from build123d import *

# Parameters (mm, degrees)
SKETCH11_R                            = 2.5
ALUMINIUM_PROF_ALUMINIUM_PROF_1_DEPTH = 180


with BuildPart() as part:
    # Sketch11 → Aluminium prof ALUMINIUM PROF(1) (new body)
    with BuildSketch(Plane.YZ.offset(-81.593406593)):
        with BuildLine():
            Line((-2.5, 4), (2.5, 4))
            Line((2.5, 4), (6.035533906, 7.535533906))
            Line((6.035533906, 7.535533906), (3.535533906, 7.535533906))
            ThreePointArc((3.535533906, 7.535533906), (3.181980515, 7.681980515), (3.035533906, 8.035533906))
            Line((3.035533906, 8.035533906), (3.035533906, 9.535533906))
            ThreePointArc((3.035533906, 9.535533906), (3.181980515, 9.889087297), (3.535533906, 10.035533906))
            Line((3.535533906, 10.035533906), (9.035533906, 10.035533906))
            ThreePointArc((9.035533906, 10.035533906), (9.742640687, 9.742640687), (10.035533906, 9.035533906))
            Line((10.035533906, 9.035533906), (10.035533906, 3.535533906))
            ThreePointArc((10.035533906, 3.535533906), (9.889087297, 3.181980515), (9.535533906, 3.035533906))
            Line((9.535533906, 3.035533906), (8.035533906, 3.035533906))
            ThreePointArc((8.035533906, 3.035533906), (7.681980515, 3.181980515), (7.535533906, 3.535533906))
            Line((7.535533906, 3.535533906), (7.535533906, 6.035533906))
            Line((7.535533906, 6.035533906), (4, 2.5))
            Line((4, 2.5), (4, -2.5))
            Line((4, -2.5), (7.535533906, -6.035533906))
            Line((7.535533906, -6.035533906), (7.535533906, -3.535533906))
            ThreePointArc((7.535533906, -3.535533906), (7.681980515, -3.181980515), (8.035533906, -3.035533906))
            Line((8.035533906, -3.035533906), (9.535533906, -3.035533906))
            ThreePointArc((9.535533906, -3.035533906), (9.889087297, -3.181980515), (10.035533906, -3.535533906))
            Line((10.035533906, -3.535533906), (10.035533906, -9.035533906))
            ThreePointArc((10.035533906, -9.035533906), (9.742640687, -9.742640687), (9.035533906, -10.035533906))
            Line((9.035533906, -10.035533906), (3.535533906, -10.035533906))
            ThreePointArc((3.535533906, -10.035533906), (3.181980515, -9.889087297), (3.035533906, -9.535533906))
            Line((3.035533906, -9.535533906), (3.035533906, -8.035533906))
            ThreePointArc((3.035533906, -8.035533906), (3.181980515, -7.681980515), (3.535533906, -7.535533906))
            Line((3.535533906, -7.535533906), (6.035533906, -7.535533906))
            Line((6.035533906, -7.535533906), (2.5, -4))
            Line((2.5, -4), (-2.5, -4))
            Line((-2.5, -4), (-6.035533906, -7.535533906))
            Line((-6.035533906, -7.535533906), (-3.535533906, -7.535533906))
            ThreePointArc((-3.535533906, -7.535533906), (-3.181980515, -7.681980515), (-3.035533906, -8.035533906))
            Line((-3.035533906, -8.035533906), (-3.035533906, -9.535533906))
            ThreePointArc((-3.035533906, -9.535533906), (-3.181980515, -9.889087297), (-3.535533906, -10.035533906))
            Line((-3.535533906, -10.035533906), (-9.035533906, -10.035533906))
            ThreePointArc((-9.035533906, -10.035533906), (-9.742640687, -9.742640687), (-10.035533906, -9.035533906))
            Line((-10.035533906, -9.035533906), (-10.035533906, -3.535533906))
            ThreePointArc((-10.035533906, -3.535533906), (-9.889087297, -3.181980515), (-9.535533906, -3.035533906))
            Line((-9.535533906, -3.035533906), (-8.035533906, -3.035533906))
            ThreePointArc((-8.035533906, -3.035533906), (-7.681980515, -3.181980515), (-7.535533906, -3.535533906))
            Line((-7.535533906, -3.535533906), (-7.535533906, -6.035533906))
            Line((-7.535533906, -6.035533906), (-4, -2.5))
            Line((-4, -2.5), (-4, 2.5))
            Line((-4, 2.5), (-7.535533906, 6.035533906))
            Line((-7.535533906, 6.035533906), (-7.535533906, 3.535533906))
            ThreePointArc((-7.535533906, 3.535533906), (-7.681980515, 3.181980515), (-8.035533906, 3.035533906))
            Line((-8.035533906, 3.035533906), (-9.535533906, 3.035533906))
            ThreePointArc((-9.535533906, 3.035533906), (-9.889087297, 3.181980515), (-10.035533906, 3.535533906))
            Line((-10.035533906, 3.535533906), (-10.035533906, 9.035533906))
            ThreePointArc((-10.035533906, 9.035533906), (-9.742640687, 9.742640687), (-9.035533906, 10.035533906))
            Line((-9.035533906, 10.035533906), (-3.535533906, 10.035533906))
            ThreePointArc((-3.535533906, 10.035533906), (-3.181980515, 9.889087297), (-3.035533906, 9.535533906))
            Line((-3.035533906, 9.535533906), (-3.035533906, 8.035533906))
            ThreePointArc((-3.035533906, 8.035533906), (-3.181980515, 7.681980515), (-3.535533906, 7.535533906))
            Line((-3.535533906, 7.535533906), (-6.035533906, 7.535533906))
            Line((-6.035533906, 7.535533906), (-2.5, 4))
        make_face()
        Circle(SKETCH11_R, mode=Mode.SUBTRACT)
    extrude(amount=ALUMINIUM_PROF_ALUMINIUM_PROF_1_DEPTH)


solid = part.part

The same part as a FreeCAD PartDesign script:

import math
import FreeCAD as App
import Part
import Sketcher
from FreeCAD import Vector

doc = App.newDocument("Part")
body = doc.addObject("PartDesign::Body", "Body")

# Sketch on YZ plane
sketch1 = body.newObject("Sketcher::SketchObject", "Sketch")
sketch1.AttachmentSupport = (doc.getObject("YZ_Plane"), [""])
sketch1.MapMode = "FlatFace"
sketch1.AttachmentOffset = App.Placement(Vector(0, 0, -81.593407), App.Rotation())
sketch1.addGeometry(Part.LineSegment(Vector(2.5, 4, 0), Vector(-2.5, 4, 0)), False)
sketch1.addGeometry(Part.LineSegment(Vector(-2.5, 4, 0), Vector(-6.04, 7.54, 0)), False)
sketch1.addGeometry(Part.LineSegment(Vector(-6.04, 7.54, 0), Vector(-3.54, 7.54, 0)), False)
sketch1.addGeometry(Part.ArcOfCircle(Part.Circle(Vector(-3.54, 8.04, 0), Vector(0, 0, 1), 0.5), math.radians(-90), math.radians(0)), False)
sketch1.addGeometry(Part.LineSegment(Vector(-3.04, 8.04, 0), Vector(-3.04, 9.54, 0)), False)
sketch1.addGeometry(Part.ArcOfCircle(Part.Circle(Vector(-3.54, 9.54, 0), Vector(0, 0, 1), 0.5), math.radians(0), math.radians(90)), False)
sketch1.addGeometry(Part.LineSegment(Vector(-3.54, 10.04, 0), Vector(-9.04, 10.04, 0)), False)
sketch1.addGeometry(Part.ArcOfCircle(Part.Circle(Vector(-9.04, 9.04, 0), Vector(0, 0, 1), 1), math.radians(90), math.radians(180)), False)
sketch1.addGeometry(Part.LineSegment(Vector(-10.04, 9.04, 0), Vector(-10.04, 3.54, 0)), False)
sketch1.addGeometry(Part.ArcOfCircle(Part.Circle(Vector(-9.54, 3.54, 0), Vector(0, 0, 1), 0.5), math.radians(180), math.radians(270)), False)
sketch1.addGeometry(Part.LineSegment(Vector(-9.54, 3.04, 0), Vector(-8.04, 3.04, 0)), False)
sketch1.addGeometry(Part.ArcOfCircle(Part.Circle(Vector(-8.04, 3.54, 0), Vector(0, 0, 1), 0.5), math.radians(-90), math.radians(0)), False)
sketch1.addGeometry(Part.LineSegment(Vector(-7.54, 3.54, 0), Vector(-7.54, 6.04, 0)), False)
sketch1.addGeometry(Part.LineSegment(Vector(-7.54, 6.04, 0), Vector(-4, 2.5, 0)), False)
sketch1.addGeometry(Part.LineSegment(Vector(-4, 2.5, 0), Vector(-4, -2.5, 0)), False)
sketch1.addGeometry(Part.LineSegment(Vector(-4, -2.5, 0), Vector(-7.54, -6.04, 0)), False)
sketch1.addGeometry(Part.LineSegment(Vector(-7.54, -6.04, 0), Vector(-7.54, -3.54, 0)), False)
sketch1.addGeometry(Part.ArcOfCircle(Part.Circle(Vector(-8.04, -3.54, 0), Vector(0, 0, 1), 0.5), math.radians(0), math.radians(90)), False)
sketch1.addGeometry(Part.LineSegment(Vector(-8.04, -3.04, 0), Vector(-9.54, -3.04, 0)), False)
sketch1.addGeometry(Part.ArcOfCircle(Part.Circle(Vector(-9.54, -3.54, 0), Vector(0, 0, 1), 0.5), math.radians(90), math.radians(180)), False)
sketch1.addGeometry(Part.LineSegment(Vector(-10.04, -3.54, 0), Vector(-10.04, -9.04, 0)), False)
sketch1.addGeometry(Part.ArcOfCircle(Part.Circle(Vector(-9.04, -9.04, 0), Vector(0, 0, 1), 1), math.radians(-180), math.radians(-90)), False)
sketch1.addGeometry(Part.LineSegment(Vector(-9.04, -10.04, 0), Vector(-3.54, -10.04, 0)), False)
sketch1.addGeometry(Part.ArcOfCircle(Part.Circle(Vector(-3.54, -9.54, 0), Vector(0, 0, 1), 0.5), math.radians(-90), math.radians(0)), False)
sketch1.addGeometry(Part.LineSegment(Vector(-3.04, -9.54, 0), Vector(-3.04, -8.04, 0)), False)
sketch1.addGeometry(Part.ArcOfCircle(Part.Circle(Vector(-3.54, -8.04, 0), Vector(0, 0, 1), 0.5), math.radians(0), math.radians(90)), False)
sketch1.addGeometry(Part.LineSegment(Vector(-3.54, -7.54, 0), Vector(-6.04, -7.54, 0)), False)
sketch1.addGeometry(Part.LineSegment(Vector(-6.04, -7.54, 0), Vector(-2.5, -4, 0)), False)
sketch1.addGeometry(Part.LineSegment(Vector(-2.5, -4, 0), Vector(2.5, -4, 0)), False)
sketch1.addGeometry(Part.LineSegment(Vector(2.5, -4, 0), Vector(6.04, -7.54, 0)), False)
sketch1.addGeometry(Part.LineSegment(Vector(6.04, -7.54, 0), Vector(3.54, -7.54, 0)), False)
sketch1.addGeometry(Part.ArcOfCircle(Part.Circle(Vector(3.54, -8.04, 0), Vector(0, 0, 1), 0.5), math.radians(90), math.radians(180)), False)
sketch1.addGeometry(Part.LineSegment(Vector(3.04, -8.04, 0), Vector(3.04, -9.54, 0)), False)
sketch1.addGeometry(Part.ArcOfCircle(Part.Circle(Vector(3.54, -9.54, 0), Vector(0, 0, 1), 0.5), math.radians(180), math.radians(270)), False)
sketch1.addGeometry(Part.LineSegment(Vector(3.54, -10.04, 0), Vector(9.04, -10.04, 0)), False)
sketch1.addGeometry(Part.ArcOfCircle(Part.Circle(Vector(9.04, -9.04, 0), Vector(0, 0, 1), 1), math.radians(-90), math.radians(0)), False)
sketch1.addGeometry(Part.LineSegment(Vector(10.04, -9.04, 0), Vector(10.04, -3.54, 0)), False)
sketch1.addGeometry(Part.ArcOfCircle(Part.Circle(Vector(9.54, -3.54, 0), Vector(0, 0, 1), 0.5), math.radians(0), math.radians(90)), False)
sketch1.addGeometry(Part.LineSegment(Vector(9.54, -3.04, 0), Vector(8.04, -3.04, 0)), False)
sketch1.addGeometry(Part.ArcOfCircle(Part.Circle(Vector(8.04, -3.54, 0), Vector(0, 0, 1), 0.5), math.radians(90), math.radians(180)), False)
sketch1.addGeometry(Part.LineSegment(Vector(7.54, -3.54, 0), Vector(7.54, -6.04, 0)), False)
sketch1.addGeometry(Part.LineSegment(Vector(7.54, -6.04, 0), Vector(4, -2.5, 0)), False)
sketch1.addGeometry(Part.LineSegment(Vector(4, -2.5, 0), Vector(4, 2.5, 0)), False)
sketch1.addGeometry(Part.LineSegment(Vector(4, 2.5, 0), Vector(7.54, 6.04, 0)), False)
sketch1.addGeometry(Part.LineSegment(Vector(7.54, 6.04, 0), Vector(7.54, 3.54, 0)), False)
sketch1.addGeometry(Part.ArcOfCircle(Part.Circle(Vector(8.04, 3.54, 0), Vector(0, 0, 1), 0.5), math.radians(180), math.radians(270)), False)
sketch1.addGeometry(Part.LineSegment(Vector(8.04, 3.04, 0), Vector(9.54, 3.04, 0)), False)
sketch1.addGeometry(Part.ArcOfCircle(Part.Circle(Vector(9.54, 3.54, 0), Vector(0, 0, 1), 0.5), math.radians(-90), math.radians(0)), False)
sketch1.addGeometry(Part.LineSegment(Vector(10.04, 3.54, 0), Vector(10.04, 9.04, 0)), False)
sketch1.addGeometry(Part.ArcOfCircle(Part.Circle(Vector(9.04, 9.04, 0), Vector(0, 0, 1), 1), math.radians(0), math.radians(90)), False)
sketch1.addGeometry(Part.LineSegment(Vector(9.04, 10.04, 0), Vector(3.54, 10.04, 0)), False)
sketch1.addGeometry(Part.ArcOfCircle(Part.Circle(Vector(3.54, 9.54, 0), Vector(0, 0, 1), 0.5), math.radians(90), math.radians(180)), False)
sketch1.addGeometry(Part.LineSegment(Vector(3.04, 9.54, 0), Vector(3.04, 8.04, 0)), False)
sketch1.addGeometry(Part.ArcOfCircle(Part.Circle(Vector(3.54, 8.04, 0), Vector(0, 0, 1), 0.5), math.radians(180), math.radians(270)), False)
sketch1.addGeometry(Part.LineSegment(Vector(3.54, 7.54, 0), Vector(6.04, 7.54, 0)), False)
sketch1.addGeometry(Part.LineSegment(Vector(6.04, 7.54, 0), Vector(2.5, 4, 0)), False)
sketch1.addGeometry(Part.Circle(Vector(0, 0, 0), Vector(0, 0, 1), 2.5), False)
sketch1.addConstraint(Sketcher.Constraint("Coincident", 0, 2, 1, 1))
sketch1.addConstraint(Sketcher.Constraint("Coincident", 1, 2, 2, 1))
sketch1.addConstraint(Sketcher.Constraint("Tangent", 2, 2, 3, 1))
sketch1.addConstraint(Sketcher.Constraint("Tangent", 3, 2, 4, 1))
sketch1.addConstraint(Sketcher.Constraint("Tangent", 4, 2, 5, 1))
sketch1.addConstraint(Sketcher.Constraint("Tangent", 5, 2, 6, 1))
sketch1.addConstraint(Sketcher.Constraint("Tangent", 6, 2, 7, 1))
sketch1.addConstraint(Sketcher.Constraint("Tangent", 7, 2, 8, 1))
sketch1.addConstraint(Sketcher.Constraint("Tangent", 8, 2, 9, 1))
sketch1.addConstraint(Sketcher.Constraint("Tangent", 9, 2, 10, 1))
sketch1.addConstraint(Sketcher.Constraint("Tangent", 10, 2, 11, 1))
sketch1.addConstraint(Sketcher.Constraint("Tangent", 11, 2, 12, 1))
sketch1.addConstraint(Sketcher.Constraint("Coincident", 12, 2, 13, 1))
sketch1.addConstraint(Sketcher.Constraint("Coincident", 13, 2, 14, 1))
sketch1.addConstraint(Sketcher.Constraint("Coincident", 14, 2, 15, 1))
sketch1.addConstraint(Sketcher.Constraint("Coincident", 15, 2, 16, 1))
sketch1.addConstraint(Sketcher.Constraint("Tangent", 16, 2, 17, 1))
sketch1.addConstraint(Sketcher.Constraint("Tangent", 17, 2, 18, 1))
sketch1.addConstraint(Sketcher.Constraint("Tangent", 18, 2, 19, 1))
sketch1.addConstraint(Sketcher.Constraint("Tangent", 19, 2, 20, 1))
sketch1.addConstraint(Sketcher.Constraint("Tangent", 20, 2, 21, 1))
sketch1.addConstraint(Sketcher.Constraint("Tangent", 21, 2, 22, 1))
sketch1.addConstraint(Sketcher.Constraint("Tangent", 22, 2, 23, 1))
sketch1.addConstraint(Sketcher.Constraint("Tangent", 23, 2, 24, 1))
sketch1.addConstraint(Sketcher.Constraint("Tangent", 24, 2, 25, 1))
sketch1.addConstraint(Sketcher.Constraint("Tangent", 25, 2, 26, 1))
sketch1.addConstraint(Sketcher.Constraint("Coincident", 26, 2, 27, 1))
sketch1.addConstraint(Sketcher.Constraint("Coincident", 27, 2, 28, 1))
sketch1.addConstraint(Sketcher.Constraint("Coincident", 28, 2, 29, 1))
sketch1.addConstraint(Sketcher.Constraint("Coincident", 29, 2, 30, 1))
sketch1.addConstraint(Sketcher.Constraint("Tangent", 30, 2, 31, 1))
sketch1.addConstraint(Sketcher.Constraint("Tangent", 31, 2, 32, 1))
sketch1.addConstraint(Sketcher.Constraint("Tangent", 32, 2, 33, 1))
sketch1.addConstraint(Sketcher.Constraint("Tangent", 33, 2, 34, 1))
sketch1.addConstraint(Sketcher.Constraint("Tangent", 34, 2, 35, 1))
sketch1.addConstraint(Sketcher.Constraint("Tangent", 35, 2, 36, 1))
sketch1.addConstraint(Sketcher.Constraint("Tangent", 36, 2, 37, 1))
sketch1.addConstraint(Sketcher.Constraint("Tangent", 37, 2, 38, 1))
sketch1.addConstraint(Sketcher.Constraint("Tangent", 38, 2, 39, 1))
sketch1.addConstraint(Sketcher.Constraint("Tangent", 39, 2, 40, 1))
sketch1.addConstraint(Sketcher.Constraint("Coincident", 40, 2, 41, 1))
sketch1.addConstraint(Sketcher.Constraint("Coincident", 41, 2, 42, 1))
sketch1.addConstraint(Sketcher.Constraint("Coincident", 42, 2, 43, 1))
sketch1.addConstraint(Sketcher.Constraint("Coincident", 43, 2, 44, 1))
sketch1.addConstraint(Sketcher.Constraint("Tangent", 44, 2, 45, 1))
sketch1.addConstraint(Sketcher.Constraint("Tangent", 45, 2, 46, 1))
sketch1.addConstraint(Sketcher.Constraint("Tangent", 46, 2, 47, 1))
sketch1.addConstraint(Sketcher.Constraint("Tangent", 47, 2, 48, 1))
sketch1.addConstraint(Sketcher.Constraint("Tangent", 48, 2, 49, 1))
sketch1.addConstraint(Sketcher.Constraint("Tangent", 49, 2, 50, 1))
sketch1.addConstraint(Sketcher.Constraint("Tangent", 50, 2, 51, 1))
sketch1.addConstraint(Sketcher.Constraint("Tangent", 51, 2, 52, 1))
sketch1.addConstraint(Sketcher.Constraint("Tangent", 52, 2, 53, 1))
sketch1.addConstraint(Sketcher.Constraint("Tangent", 53, 2, 54, 1))
sketch1.addConstraint(Sketcher.Constraint("Coincident", 54, 2, 55, 1))
sketch1.addConstraint(Sketcher.Constraint("Coincident", 55, 2, 0, 1))
sketch1.addConstraint(Sketcher.Constraint("Horizontal", 0))
sketch1.addConstraint(Sketcher.Constraint("Horizontal", 2))
sketch1.addConstraint(Sketcher.Constraint("Vertical", 4))
sketch1.addConstraint(Sketcher.Constraint("Horizontal", 6))
sketch1.addConstraint(Sketcher.Constraint("Vertical", 8))
sketch1.addConstraint(Sketcher.Constraint("Horizontal", 10))
sketch1.addConstraint(Sketcher.Constraint("Vertical", 12))
sketch1.addConstraint(Sketcher.Constraint("Vertical", 14))
sketch1.addConstraint(Sketcher.Constraint("Vertical", 16))
sketch1.addConstraint(Sketcher.Constraint("Horizontal", 18))
sketch1.addConstraint(Sketcher.Constraint("Vertical", 20))
sketch1.addConstraint(Sketcher.Constraint("Horizontal", 22))
sketch1.addConstraint(Sketcher.Constraint("Vertical", 24))
sketch1.addConstraint(Sketcher.Constraint("Horizontal", 26))
sketch1.addConstraint(Sketcher.Constraint("Horizontal", 28))
sketch1.addConstraint(Sketcher.Constraint("Horizontal", 30))
sketch1.addConstraint(Sketcher.Constraint("Vertical", 32))
sketch1.addConstraint(Sketcher.Constraint("Horizontal", 34))
sketch1.addConstraint(Sketcher.Constraint("Vertical", 36))
sketch1.addConstraint(Sketcher.Constraint("Horizontal", 38))
sketch1.addConstraint(Sketcher.Constraint("Vertical", 40))
sketch1.addConstraint(Sketcher.Constraint("Vertical", 42))
sketch1.addConstraint(Sketcher.Constraint("Vertical", 44))
sketch1.addConstraint(Sketcher.Constraint("Horizontal", 46))
sketch1.addConstraint(Sketcher.Constraint("Vertical", 48))
sketch1.addConstraint(Sketcher.Constraint("Horizontal", 50))
sketch1.addConstraint(Sketcher.Constraint("Vertical", 52))
sketch1.addConstraint(Sketcher.Constraint("Horizontal", 54))
sketch1.addConstraint(Sketcher.Constraint("Coincident", 56, 3, -1, 1))
sketch1.addConstraint(Sketcher.Constraint("Equal", 3, 5))
sketch1.addConstraint(Sketcher.Constraint("Equal", 5, 9))
sketch1.addConstraint(Sketcher.Constraint("Equal", 9, 11))
sketch1.addConstraint(Sketcher.Constraint("Equal", 11, 17))
sketch1.addConstraint(Sketcher.Constraint("Equal", 17, 19))
sketch1.addConstraint(Sketcher.Constraint("Equal", 7, 21))
sketch1.addConstraint(Sketcher.Constraint("Equal", 19, 23))
sketch1.addConstraint(Sketcher.Constraint("Equal", 23, 25))
sketch1.addConstraint(Sketcher.Constraint("Equal", 25, 31))
sketch1.addConstraint(Sketcher.Constraint("Equal", 31, 33))
sketch1.addConstraint(Sketcher.Constraint("Equal", 21, 35))
sketch1.addConstraint(Sketcher.Constraint("Equal", 33, 37))
sketch1.addConstraint(Sketcher.Constraint("Equal", 37, 39))
sketch1.addConstraint(Sketcher.Constraint("Equal", 39, 45))
sketch1.addConstraint(Sketcher.Constraint("Equal", 45, 47))
sketch1.addConstraint(Sketcher.Constraint("Equal", 35, 49))
sketch1.addConstraint(Sketcher.Constraint("Equal", 47, 51))
sketch1.addConstraint(Sketcher.Constraint("Equal", 51, 53))
sketch1.addConstraint(Sketcher.Constraint("Symmetric", 3, 3, 31, 3, -1, 1))
sketch1.addConstraint(Sketcher.Constraint("Symmetric", 7, 3, 35, 3, -1, 1))
sketch1.addConstraint(Sketcher.Constraint("Symmetric", 11, 3, 39, 3, -1, 1))
sketch1.addConstraint(Sketcher.Constraint("Symmetric", 17, 3, 45, 3, -1, 1))
sketch1.addConstraint(Sketcher.Constraint("Symmetric", 21, 3, 49, 3, -1, 1))
sketch1.addConstraint(Sketcher.Constraint("Symmetric", 25, 3, 53, 3, -1, 1))
sketch1.addConstraint(Sketcher.Constraint("Symmetric", 0, 2, 28, 2, -1, 1))
sketch1.addConstraint(Sketcher.Constraint("Symmetric", 13, 2, 41, 2, -1, 1))
sketch1.addConstraint(Sketcher.Constraint("Symmetric", 25, 3, 31, 3, -2))
sketch1.addConstraint(Sketcher.Constraint("Symmetric", 21, 3, 35, 3, -2))
sketch1.addConstraint(Sketcher.Constraint("Symmetric", 17, 3, 39, 3, -2))
sketch1.addConstraint(Sketcher.Constraint("Parallel", 1, 13))
sketch1.addConstraint(Sketcher.Constraint("Perpendicular", 13, 15))
sketch1.addConstraint(Sketcher.Constraint("Parallel", 15, 27))
sketch1.addConstraint(Sketcher.Constraint("Perpendicular", 27, 29))
sketch1.addConstraint(Sketcher.Constraint("Parallel", 29, 41))
sketch1.addConstraint(Sketcher.Constraint("Perpendicular", 41, 43))
sketch1.addConstraint(Sketcher.Constraint("Parallel", 43, 55))
sketch1.addConstraint(Sketcher.Constraint("Horizontal", 15, 2, 40, 2))
sketch1.addConstraint(Sketcher.Constraint("Horizontal", 14, 2, 41, 2))
sketch1.addConstraint(Sketcher.Constraint("Horizontal", 13, 2, 42, 2))
sketch1.addConstraint(Sketcher.Constraint("Vertical", 1, 2, 26, 2))
sketch1.addConstraint(Sketcher.Constraint("Vertical", 29, 2, 54, 2))
sketch1.addConstraint(Sketcher.Constraint("Equal", 46, 4))
sketch1.addConstraint(Sketcher.Constraint("Equal", 50, 8))
sketch1.addConstraint(Sketcher.Constraint("Equal", 54, 12))
sketch1.addConstraint(Sketcher.Constraint("Equal", 28, 14))
sketch1.addConstraint(Sketcher.Constraint("Equal", 1, 13))
sketch1.addConstraint(Sketcher.Constraint("Diameter", 56, 5.0))
sketch1.addConstraint(Sketcher.Constraint("Radius", 7, 1.0))
sketch1.addConstraint(Sketcher.Constraint("Radius", 3, 0.5))
sketch1.addConstraint(Sketcher.Constraint("DistanceX", 0, 2, 0, 1, 5.0))
sketch1.addConstraint(Sketcher.Constraint("Distance", 1, 5.0))
sketch1.addConstraint(Sketcher.Constraint("DistanceX", 2, 1, 2, 2, 2.5))
sketch1.addConstraint(Sketcher.Constraint("DistanceX", 6, 2, 6, 1, 5.5))
sketch1.addConstraint(Sketcher.Constraint("DistanceX", 10, 1, 10, 2, 1.5))
pad1 = body.newObject("PartDesign::Pad", "Pad")
pad1.Profile = sketch1
pad1.Length = 180

doc.recompute()
